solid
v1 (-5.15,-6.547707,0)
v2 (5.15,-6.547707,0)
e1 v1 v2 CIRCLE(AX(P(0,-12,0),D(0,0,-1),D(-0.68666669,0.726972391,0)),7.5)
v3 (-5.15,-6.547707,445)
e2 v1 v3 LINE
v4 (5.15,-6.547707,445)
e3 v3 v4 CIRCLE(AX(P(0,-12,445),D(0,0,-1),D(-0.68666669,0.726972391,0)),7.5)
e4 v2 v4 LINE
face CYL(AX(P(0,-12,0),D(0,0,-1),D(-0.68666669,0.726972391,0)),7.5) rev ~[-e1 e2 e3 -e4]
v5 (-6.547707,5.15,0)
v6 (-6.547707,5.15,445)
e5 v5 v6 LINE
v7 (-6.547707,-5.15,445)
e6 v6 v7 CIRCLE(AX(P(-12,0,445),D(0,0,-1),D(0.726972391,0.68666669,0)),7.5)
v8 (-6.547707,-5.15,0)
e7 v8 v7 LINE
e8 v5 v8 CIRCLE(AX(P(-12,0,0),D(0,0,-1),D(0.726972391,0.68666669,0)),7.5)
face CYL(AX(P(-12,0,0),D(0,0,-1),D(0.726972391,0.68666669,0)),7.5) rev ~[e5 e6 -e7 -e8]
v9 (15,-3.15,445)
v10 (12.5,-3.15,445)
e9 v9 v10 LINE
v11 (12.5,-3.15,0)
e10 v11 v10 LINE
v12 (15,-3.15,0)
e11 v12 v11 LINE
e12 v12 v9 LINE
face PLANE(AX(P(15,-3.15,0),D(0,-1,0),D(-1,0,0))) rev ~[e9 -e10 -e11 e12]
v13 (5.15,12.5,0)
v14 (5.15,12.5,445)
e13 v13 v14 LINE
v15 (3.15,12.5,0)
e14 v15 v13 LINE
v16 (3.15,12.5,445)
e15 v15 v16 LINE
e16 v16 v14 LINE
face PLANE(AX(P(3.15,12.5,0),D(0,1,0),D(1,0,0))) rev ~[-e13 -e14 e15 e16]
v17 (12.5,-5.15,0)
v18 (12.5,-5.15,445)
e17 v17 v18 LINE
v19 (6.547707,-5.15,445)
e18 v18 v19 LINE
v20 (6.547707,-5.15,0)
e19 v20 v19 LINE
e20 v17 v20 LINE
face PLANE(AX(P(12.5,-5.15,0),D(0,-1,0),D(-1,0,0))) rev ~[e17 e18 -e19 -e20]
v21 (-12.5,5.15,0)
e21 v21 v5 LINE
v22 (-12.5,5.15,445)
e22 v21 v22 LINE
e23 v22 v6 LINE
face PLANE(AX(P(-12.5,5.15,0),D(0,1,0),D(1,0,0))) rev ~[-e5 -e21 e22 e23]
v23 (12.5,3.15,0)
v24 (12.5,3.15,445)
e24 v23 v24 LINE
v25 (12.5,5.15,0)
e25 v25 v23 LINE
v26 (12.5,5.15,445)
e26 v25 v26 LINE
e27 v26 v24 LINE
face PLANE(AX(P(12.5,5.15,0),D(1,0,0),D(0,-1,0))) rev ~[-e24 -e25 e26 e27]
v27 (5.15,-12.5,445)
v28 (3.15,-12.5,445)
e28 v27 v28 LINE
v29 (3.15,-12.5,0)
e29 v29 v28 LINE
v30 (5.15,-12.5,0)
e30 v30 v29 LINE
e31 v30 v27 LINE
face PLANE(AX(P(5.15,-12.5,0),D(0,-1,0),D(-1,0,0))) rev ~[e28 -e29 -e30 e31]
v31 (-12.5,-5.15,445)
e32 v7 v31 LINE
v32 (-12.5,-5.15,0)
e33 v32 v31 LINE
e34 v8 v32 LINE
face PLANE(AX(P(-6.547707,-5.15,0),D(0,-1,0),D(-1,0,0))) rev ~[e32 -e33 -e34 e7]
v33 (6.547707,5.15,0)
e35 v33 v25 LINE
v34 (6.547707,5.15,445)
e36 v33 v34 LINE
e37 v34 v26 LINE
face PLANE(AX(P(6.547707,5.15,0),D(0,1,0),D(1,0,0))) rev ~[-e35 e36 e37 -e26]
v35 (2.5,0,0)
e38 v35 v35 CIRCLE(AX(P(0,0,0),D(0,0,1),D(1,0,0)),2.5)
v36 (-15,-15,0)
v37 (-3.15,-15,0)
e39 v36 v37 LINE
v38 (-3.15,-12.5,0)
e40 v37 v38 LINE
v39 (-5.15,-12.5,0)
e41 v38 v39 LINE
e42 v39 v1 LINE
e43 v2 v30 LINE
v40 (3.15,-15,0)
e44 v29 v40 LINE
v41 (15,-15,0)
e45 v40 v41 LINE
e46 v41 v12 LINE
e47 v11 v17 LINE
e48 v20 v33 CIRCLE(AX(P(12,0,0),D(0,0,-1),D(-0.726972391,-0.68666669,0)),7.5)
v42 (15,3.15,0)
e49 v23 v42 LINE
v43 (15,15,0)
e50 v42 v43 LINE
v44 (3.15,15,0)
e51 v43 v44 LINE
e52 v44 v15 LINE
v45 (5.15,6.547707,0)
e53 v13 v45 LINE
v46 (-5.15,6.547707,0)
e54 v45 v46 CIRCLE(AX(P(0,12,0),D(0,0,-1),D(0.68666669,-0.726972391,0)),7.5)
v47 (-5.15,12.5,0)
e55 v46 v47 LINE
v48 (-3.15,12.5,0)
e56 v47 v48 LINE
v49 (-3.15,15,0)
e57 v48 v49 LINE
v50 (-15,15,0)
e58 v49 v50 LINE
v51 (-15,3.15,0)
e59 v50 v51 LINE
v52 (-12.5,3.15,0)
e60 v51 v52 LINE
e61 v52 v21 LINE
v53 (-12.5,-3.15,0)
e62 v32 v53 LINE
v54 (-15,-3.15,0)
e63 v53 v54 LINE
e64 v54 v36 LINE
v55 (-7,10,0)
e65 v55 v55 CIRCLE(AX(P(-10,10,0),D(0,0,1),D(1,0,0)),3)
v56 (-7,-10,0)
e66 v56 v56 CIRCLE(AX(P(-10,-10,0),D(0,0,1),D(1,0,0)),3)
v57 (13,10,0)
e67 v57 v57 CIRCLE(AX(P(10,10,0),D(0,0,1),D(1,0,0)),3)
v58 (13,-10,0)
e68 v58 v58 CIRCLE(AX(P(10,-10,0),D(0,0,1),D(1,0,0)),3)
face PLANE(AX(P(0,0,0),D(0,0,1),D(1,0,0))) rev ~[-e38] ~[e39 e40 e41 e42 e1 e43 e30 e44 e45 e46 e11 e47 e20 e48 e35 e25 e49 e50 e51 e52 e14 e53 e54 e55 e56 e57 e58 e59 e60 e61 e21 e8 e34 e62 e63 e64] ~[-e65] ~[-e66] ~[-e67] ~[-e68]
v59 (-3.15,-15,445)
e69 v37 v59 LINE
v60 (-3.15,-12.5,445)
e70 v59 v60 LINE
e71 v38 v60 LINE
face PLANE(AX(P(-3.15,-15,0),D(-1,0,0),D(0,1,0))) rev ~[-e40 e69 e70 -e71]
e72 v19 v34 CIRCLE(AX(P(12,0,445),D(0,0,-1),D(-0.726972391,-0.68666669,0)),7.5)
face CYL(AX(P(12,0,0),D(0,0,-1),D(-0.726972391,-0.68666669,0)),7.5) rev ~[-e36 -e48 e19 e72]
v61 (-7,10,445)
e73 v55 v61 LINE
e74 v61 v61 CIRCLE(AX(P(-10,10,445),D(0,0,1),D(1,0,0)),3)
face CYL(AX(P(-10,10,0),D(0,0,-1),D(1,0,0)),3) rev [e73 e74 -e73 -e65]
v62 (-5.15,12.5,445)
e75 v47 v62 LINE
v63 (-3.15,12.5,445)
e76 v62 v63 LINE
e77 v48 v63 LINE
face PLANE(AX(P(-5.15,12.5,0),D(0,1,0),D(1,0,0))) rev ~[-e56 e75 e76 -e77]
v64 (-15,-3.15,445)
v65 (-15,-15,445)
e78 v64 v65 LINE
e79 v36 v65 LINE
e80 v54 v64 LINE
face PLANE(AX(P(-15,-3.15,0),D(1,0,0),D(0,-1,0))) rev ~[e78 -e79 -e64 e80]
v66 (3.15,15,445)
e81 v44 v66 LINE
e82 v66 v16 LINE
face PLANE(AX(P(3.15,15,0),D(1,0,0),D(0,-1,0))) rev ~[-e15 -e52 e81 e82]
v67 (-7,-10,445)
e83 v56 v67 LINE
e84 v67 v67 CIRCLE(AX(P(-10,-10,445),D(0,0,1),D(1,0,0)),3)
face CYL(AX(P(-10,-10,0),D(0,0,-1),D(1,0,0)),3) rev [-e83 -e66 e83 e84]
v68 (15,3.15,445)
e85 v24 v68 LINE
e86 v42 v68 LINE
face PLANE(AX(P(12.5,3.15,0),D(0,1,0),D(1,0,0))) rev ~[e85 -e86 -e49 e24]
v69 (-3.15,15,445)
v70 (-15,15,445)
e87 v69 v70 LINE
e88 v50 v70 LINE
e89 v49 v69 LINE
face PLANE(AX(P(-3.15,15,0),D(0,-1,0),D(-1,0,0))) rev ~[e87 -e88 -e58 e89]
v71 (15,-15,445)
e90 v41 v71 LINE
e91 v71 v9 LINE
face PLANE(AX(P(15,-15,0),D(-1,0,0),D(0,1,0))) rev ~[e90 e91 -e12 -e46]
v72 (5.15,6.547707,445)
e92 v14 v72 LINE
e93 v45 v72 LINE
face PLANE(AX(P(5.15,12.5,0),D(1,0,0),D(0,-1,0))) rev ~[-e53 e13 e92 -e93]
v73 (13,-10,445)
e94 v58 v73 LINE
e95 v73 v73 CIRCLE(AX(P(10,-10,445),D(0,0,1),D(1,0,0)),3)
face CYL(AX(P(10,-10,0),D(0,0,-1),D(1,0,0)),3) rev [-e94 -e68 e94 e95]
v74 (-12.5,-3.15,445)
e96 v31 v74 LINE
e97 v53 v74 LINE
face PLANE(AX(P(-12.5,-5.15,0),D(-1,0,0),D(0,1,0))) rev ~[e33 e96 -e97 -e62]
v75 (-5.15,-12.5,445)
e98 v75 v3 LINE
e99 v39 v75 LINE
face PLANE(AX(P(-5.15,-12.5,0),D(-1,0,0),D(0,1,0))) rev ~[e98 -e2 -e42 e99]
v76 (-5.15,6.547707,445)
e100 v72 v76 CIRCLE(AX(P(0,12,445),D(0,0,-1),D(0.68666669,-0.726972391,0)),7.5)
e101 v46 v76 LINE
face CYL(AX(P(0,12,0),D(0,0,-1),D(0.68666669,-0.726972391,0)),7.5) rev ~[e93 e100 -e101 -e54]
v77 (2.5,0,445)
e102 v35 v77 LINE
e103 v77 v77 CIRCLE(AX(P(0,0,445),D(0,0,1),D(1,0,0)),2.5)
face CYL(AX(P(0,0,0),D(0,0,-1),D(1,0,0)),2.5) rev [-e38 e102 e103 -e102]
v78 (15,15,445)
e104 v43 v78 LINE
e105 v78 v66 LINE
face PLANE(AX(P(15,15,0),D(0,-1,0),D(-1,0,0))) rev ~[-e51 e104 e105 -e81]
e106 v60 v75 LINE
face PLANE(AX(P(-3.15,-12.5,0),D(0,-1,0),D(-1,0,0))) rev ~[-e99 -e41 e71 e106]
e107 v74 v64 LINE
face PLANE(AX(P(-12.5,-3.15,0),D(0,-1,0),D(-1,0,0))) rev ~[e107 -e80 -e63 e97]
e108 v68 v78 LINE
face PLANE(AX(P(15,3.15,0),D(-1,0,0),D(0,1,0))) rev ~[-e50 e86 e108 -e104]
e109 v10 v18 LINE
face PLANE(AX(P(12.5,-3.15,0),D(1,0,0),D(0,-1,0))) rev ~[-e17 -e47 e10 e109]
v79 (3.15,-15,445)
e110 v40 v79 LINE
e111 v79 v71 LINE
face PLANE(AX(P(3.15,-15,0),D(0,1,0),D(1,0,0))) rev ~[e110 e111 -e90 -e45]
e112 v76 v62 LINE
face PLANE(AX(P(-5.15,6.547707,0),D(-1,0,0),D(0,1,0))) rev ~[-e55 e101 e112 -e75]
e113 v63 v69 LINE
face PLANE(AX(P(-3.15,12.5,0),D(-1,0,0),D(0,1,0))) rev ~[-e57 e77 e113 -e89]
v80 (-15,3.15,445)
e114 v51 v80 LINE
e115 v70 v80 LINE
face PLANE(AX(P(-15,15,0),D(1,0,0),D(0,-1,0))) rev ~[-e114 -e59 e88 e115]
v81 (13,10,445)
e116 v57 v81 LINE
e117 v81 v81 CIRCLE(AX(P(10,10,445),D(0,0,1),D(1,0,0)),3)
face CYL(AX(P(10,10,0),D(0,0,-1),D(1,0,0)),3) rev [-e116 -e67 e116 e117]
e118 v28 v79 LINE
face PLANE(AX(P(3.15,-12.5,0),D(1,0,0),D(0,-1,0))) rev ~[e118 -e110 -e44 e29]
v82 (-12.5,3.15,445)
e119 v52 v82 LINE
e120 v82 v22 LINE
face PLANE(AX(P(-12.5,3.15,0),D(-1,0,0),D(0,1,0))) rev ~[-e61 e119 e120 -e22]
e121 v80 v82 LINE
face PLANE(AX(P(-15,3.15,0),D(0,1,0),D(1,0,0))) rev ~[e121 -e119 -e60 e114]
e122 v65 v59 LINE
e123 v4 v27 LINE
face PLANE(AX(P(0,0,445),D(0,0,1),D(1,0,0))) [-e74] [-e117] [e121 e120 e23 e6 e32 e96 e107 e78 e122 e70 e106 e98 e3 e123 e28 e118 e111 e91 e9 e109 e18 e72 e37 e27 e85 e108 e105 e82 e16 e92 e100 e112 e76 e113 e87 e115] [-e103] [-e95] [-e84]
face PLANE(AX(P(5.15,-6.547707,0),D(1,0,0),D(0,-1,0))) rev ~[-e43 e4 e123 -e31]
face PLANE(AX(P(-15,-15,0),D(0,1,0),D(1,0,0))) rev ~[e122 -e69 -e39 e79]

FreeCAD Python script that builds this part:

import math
import FreeCAD as App
import Part
import Sketcher

V = App.Vector

doc = App.newDocument("Part")
body = doc.addObject("PartDesign::Body", "Body")

# Sketch on XY plane
sketch1 = doc.addObject("Sketcher::SketchObject", "Sketch")
body.addObject(sketch1)
sketch1.AttachmentSupport = (doc.XY_Plane, [""])
sketch1.MapMode = "FlatFace"
sketch1.addGeometry([
    Part.LineSegment(V(-15, 15, 0), V(-15, 3.15, 0)),  # 0
    Part.LineSegment(V(-15, 3.15, 0), V(-12.5, 3.15, 0)),  # 1
    Part.LineSegment(V(-12.5, 3.15, 0), V(-12.5, 5.15, 0)),  # 2
    Part.LineSegment(V(-12.5, 5.15, 0), V(-6.547707, 5.15, 0)),  # 3
    Part.ArcOfCircle(Part.Circle(V(-12, 0, 0), V(0, 0, 1), 7.5), math.radians(-43.366824), math.radians(43.366824)),  # 4
    Part.LineSegment(V(-6.547707, -5.15, 0), V(-12.5, -5.15, 0)),  # 5
    Part.LineSegment(V(-12.5, -5.15, 0), V(-12.5, -3.15, 0)),  # 6
    Part.LineSegment(V(-12.5, -3.15, 0), V(-15, -3.15, 0)),  # 7
    Part.LineSegment(V(-15, -3.15, 0), V(-15, -15, 0)),  # 8
    Part.LineSegment(V(-15, -15, 0), V(-3.15, -15, 0)),  # 9
    Part.LineSegment(V(-3.15, -15, 0), V(-3.15, -12.5, 0)),  # 10
    Part.LineSegment(V(-3.15, -12.5, 0), V(-5.15, -12.5, 0)),  # 11
    Part.LineSegment(V(-5.15, -12.5, 0), V(-5.15, -6.547707, 0)),  # 12
    Part.ArcOfCircle(Part.Circle(V(0, -12, 0), V(0, 0, 1), 7.5), math.radians(46.633176), math.radians(133.366824)),  # 13
    Part.LineSegment(V(5.15, -6.547707, 0), V(5.15, -12.5, 0)),  # 14
    Part.LineSegment(V(5.15, -12.5, 0), V(3.15, -12.5, 0)),  # 15
    Part.LineSegment(V(3.15, -12.5, 0), V(3.15, -15, 0)),  # 16
    Part.LineSegment(V(3.15, -15, 0), V(15, -15, 0)),  # 17
    Part.LineSegment(V(15, -15, 0), V(15, -3.15, 0)),  # 18
    Part.LineSegment(V(15, -3.15, 0), V(12.5, -3.15, 0)),  # 19
    Part.LineSegment(V(12.5, -3.15, 0), V(12.5, -5.15, 0)),  # 20
    Part.LineSegment(V(12.5, -5.15, 0), V(6.547707, -5.15, 0)),  # 21
    Part.ArcOfCircle(Part.Circle(V(12, 0, 0), V(0, 0, 1), 7.5), math.radians(136.633176), math.radians(223.366824)),  # 22
    Part.LineSegment(V(6.547707, 5.15, 0), V(12.5, 5.15, 0)),  # 23
    Part.LineSegment(V(12.5, 5.15, 0), V(12.5, 3.15, 0)),  # 24
    Part.LineSegment(V(12.5, 3.15, 0), V(15, 3.15, 0)),  # 25
    Part.LineSegment(V(15, 3.15, 0), V(15, 15, 0)),  # 26
    Part.LineSegment(V(15, 15, 0), V(3.15, 15, 0)),  # 27
    Part.LineSegment(V(3.15, 15, 0), V(3.15, 12.5, 0)),  # 28
    Part.LineSegment(V(3.15, 12.5, 0), V(5.15, 12.5, 0)),  # 29
    Part.LineSegment(V(5.15, 12.5, 0), V(5.15, 6.547707, 0)),  # 30
    Part.ArcOfCircle(Part.Circle(V(0, 12, 0), V(0, 0, 1), 7.5), math.radians(-133.366824), math.radians(-46.633176)),  # 31
    Part.LineSegment(V(-5.15, 6.547707, 0), V(-5.15, 12.5, 0)),  # 32
    Part.LineSegment(V(-5.15, 12.5, 0), V(-3.15, 12.5, 0)),  # 33
    Part.LineSegment(V(-3.15, 12.5, 0), V(-3.15, 15, 0)),  # 34
    Part.LineSegment(V(-3.15, 15, 0), V(-15, 15, 0)),  # 35
    Part.Circle(V(-10, -10, 0), V(0, 0, 1), 3),  # 36
    Part.Circle(V(10, -10, 0), V(0, 0, 1), 3),  # 37
    Part.Circle(V(-10, 10, 0), V(0, 0, 1), 3),  # 38
    Part.Circle(V(0, 0, 0), V(0, 0, 1), 2.5),  # 39
    Part.Circle(V(10, 10, 0), V(0, 0, 1), 3),  # 40
], False)
sketch1.addConstraint([
    Sketcher.Constraint("Coincident", 0, 2, 1, 1),
    Sketcher.Constraint("Coincident", 1, 2, 2, 1),
    Sketcher.Constraint("Coincident", 2, 2, 3, 1),
    Sketcher.Constraint("Coincident", 3, 2, 4, 2),
    Sketcher.Constraint("Coincident", 4, 1, 5, 1),
    Sketcher.Constraint("Coincident", 5, 2, 6, 1),
    Sketcher.Constraint("Coincident", 6, 2, 7, 1),
    Sketcher.Constraint("Coincident", 7, 2, 8, 1),
    Sketcher.Constraint("Coincident", 8, 2, 9, 1),
    Sketcher.Constraint("Coincident", 9, 2, 10, 1),
    Sketcher.Constraint("Coincident", 10, 2, 11, 1),
    Sketcher.Constraint("Coincident", 11, 2, 12, 1),
    Sketcher.Constraint("Coincident", 12, 2, 13, 2),
    Sketcher.Constraint("Coincident", 13, 1, 14, 1),
    Sketcher.Constraint("Coincident", 14, 2, 15, 1),
    Sketcher.Constraint("Coincident", 15, 2, 16, 1),
    Sketcher.Constraint("Coincident", 16, 2, 17, 1),
    Sketcher.Constraint("Coincident", 17, 2, 18, 1),
    Sketcher.Constraint("Coincident", 18, 2, 19, 1),
    Sketcher.Constraint("Coincident", 19, 2, 20, 1),
    Sketcher.Constraint("Coincident", 20, 2, 21, 1),
    Sketcher.Constraint("Coincident", 21, 2, 22, 2),
    Sketcher.Constraint("Coincident", 22, 1, 23, 1),
    Sketcher.Constraint("Coincident", 23, 2, 24, 1),
    Sketcher.Constraint("Coincident", 24, 2, 25, 1),
    Sketcher.Constraint("Coincident", 25, 2, 26, 1),
    Sketcher.Constraint("Coincident", 26, 2, 27, 1),
    Sketcher.Constraint("Coincident", 27, 2, 28, 1),
    Sketcher.Constraint("Coincident", 28, 2, 29, 1),
    Sketcher.Constraint("Coincident", 29, 2, 30, 1),
    Sketcher.Constraint("Coincident", 30, 2, 31, 2),
    Sketcher.Constraint("Coincident", 31, 1, 32, 1),
    Sketcher.Constraint("Coincident", 32, 2, 33, 1),
    Sketcher.Constraint("Coincident", 33, 2, 34, 1),
    Sketcher.Constraint("Coincident", 34, 2, 35, 1),
    Sketcher.Constraint("Coincident", 35, 2, 0, 1),
    Sketcher.Constraint("Vertical", 0),
    Sketcher.Constraint("Horizontal", 1),
    Sketcher.Constraint("Vertical", 2),
    Sketcher.Constraint("Horizontal", 3),
    Sketcher.Constraint("Horizontal", 5),
    Sketcher.Constraint("Vertical", 6),
    Sketcher.Constraint("Horizontal", 7),
    Sketcher.Constraint("Vertical", 8),
    Sketcher.Constraint("Horizontal", 9),
    Sketcher.Constraint("Vertical", 10),
    Sketcher.Constraint("Horizontal", 11),
    Sketcher.Constraint("Vertical", 12),
    Sketcher.Constraint("Vertical", 14),
    Sketcher.Constraint("Horizontal", 15),
    Sketcher.Constraint("Vertical", 16),
    Sketcher.Constraint("Horizontal", 17),
    Sketcher.Constraint("Vertical", 18),
    Sketcher.Constraint("Horizontal", 19),
    Sketcher.Constraint("Vertical", 20),
    Sketcher.Constraint("Horizontal", 21),
    Sketcher.Constraint("Horizontal", 23),
    Sketcher.Constraint("Vertical", 24),
    Sketcher.Constraint("Horizontal", 25),
    Sketcher.Constraint("Vertical", 26),
    Sketcher.Constraint("Horizontal", 27),
    Sketcher.Constraint("Vertical", 28),
    Sketcher.Constraint("Horizontal", 29),
    Sketcher.Constraint("Vertical", 30),
    Sketcher.Constraint("Vertical", 32),
    Sketcher.Constraint("Horizontal", 33),
    Sketcher.Constraint("Vertical", 34),
    Sketcher.Constraint("Horizontal", 35),
    Sketcher.Constraint("Coincident", 39, 3, -1, 1),
    Sketcher.Constraint("Equal", 4, 13),
    Sketcher.Constraint("Equal", 13, 22),
    Sketcher.Constraint("Equal", 22, 31),
    Sketcher.Constraint("Equal", 36, 37),
    Sketcher.Constraint("Equal", 37, 38),
    Sketcher.Constraint("Equal", 38, 40),
    Sketcher.Constraint("Symmetric", 4, 3, 22, 3, -1, 1),
    Sketcher.Constraint("Symmetric", 13, 3, 31, 3, -1, 1),
    Sketcher.Constraint("Symmetric", 37, 3, 38, 3, -1, 1),
    Sketcher.Constraint("Symmetric", 36, 3, 40, 3, -1, 1),
    Sketcher.Constraint("Symmetric", 0, 2, 18, 2, -1, 1),
    Sketcher.Constraint("Symmetric", 2, 2, 20, 2, -1, 1),
    Sketcher.Constraint("Symmetric", 5, 2, 23, 2, -1, 1),
    Sketcher.Constraint("Symmetric", 7, 2, 25, 2, -1, 1),
    Sketcher.Constraint("Symmetric", 9, 2, 27, 2, -1, 1),
    Sketcher.Constraint("Symmetric", 11, 2, 29, 2, -1, 1),
    Sketcher.Constraint("Symmetric", 14, 2, 32, 2, -1, 1),
    Sketcher.Constraint("Symmetric", 16, 2, 34, 2, -1, 1),
    Sketcher.Constraint("Symmetric", 36, 3, 37, 3, -2),
    Sketcher.Constraint("Symmetric", 12, 2, 13, 1, -2),
    Sketcher.Constraint("Symmetric", 10, 2, 15, 2, -2),
    Sketcher.Constraint("Symmetric", 8, 2, 17, 2, -2),
    Sketcher.Constraint("Symmetric", 6, 2, 19, 2, -2),
    Sketcher.Constraint("Symmetric", 4, 1, 21, 2, -2),
    Sketcher.Constraint("Equal", 35, 0),
    Sketcher.Constraint("Equal", 33, 2),
    Sketcher.Constraint("Equal", 25, 10),
    Sketcher.Constraint("Equal", 23, 12),
    Sketcher.Constraint("Diameter", 36, 6.0),
    Sketcher.Constraint("Diameter", 39, 5.0),
    Sketcher.Constraint("Radius", 4, 7.5),
    Sketcher.Constraint("DistanceX", 11, 2, 11, 1, 2.0),
    Sketcher.Constraint("DistanceX", 1, 1, 1, 2, 2.5),
    Sketcher.Constraint("DistanceX", 4, 3, -1, 1, 12.0),
    Sketcher.Constraint("DistanceY", 13, 3, -1, 1, 12.0),
    Sketcher.Constraint("DistanceX", 36, 3, -1, 1, 10.0),
    Sketcher.Constraint("DistanceY", 36, 3, -1, 1, 10.0),
    Sketcher.Constraint("DistanceX", 0, 2, -1, 1, 15.0),
    Sketcher.Constraint("DistanceX", 9, 1, 9, 2, 11.85),
])
pad1 = doc.addObject("PartDesign::Pad", "Pad")
body.addObject(pad1)
pad1.Profile = sketch1
pad1.Length = 445

doc.recompute()
